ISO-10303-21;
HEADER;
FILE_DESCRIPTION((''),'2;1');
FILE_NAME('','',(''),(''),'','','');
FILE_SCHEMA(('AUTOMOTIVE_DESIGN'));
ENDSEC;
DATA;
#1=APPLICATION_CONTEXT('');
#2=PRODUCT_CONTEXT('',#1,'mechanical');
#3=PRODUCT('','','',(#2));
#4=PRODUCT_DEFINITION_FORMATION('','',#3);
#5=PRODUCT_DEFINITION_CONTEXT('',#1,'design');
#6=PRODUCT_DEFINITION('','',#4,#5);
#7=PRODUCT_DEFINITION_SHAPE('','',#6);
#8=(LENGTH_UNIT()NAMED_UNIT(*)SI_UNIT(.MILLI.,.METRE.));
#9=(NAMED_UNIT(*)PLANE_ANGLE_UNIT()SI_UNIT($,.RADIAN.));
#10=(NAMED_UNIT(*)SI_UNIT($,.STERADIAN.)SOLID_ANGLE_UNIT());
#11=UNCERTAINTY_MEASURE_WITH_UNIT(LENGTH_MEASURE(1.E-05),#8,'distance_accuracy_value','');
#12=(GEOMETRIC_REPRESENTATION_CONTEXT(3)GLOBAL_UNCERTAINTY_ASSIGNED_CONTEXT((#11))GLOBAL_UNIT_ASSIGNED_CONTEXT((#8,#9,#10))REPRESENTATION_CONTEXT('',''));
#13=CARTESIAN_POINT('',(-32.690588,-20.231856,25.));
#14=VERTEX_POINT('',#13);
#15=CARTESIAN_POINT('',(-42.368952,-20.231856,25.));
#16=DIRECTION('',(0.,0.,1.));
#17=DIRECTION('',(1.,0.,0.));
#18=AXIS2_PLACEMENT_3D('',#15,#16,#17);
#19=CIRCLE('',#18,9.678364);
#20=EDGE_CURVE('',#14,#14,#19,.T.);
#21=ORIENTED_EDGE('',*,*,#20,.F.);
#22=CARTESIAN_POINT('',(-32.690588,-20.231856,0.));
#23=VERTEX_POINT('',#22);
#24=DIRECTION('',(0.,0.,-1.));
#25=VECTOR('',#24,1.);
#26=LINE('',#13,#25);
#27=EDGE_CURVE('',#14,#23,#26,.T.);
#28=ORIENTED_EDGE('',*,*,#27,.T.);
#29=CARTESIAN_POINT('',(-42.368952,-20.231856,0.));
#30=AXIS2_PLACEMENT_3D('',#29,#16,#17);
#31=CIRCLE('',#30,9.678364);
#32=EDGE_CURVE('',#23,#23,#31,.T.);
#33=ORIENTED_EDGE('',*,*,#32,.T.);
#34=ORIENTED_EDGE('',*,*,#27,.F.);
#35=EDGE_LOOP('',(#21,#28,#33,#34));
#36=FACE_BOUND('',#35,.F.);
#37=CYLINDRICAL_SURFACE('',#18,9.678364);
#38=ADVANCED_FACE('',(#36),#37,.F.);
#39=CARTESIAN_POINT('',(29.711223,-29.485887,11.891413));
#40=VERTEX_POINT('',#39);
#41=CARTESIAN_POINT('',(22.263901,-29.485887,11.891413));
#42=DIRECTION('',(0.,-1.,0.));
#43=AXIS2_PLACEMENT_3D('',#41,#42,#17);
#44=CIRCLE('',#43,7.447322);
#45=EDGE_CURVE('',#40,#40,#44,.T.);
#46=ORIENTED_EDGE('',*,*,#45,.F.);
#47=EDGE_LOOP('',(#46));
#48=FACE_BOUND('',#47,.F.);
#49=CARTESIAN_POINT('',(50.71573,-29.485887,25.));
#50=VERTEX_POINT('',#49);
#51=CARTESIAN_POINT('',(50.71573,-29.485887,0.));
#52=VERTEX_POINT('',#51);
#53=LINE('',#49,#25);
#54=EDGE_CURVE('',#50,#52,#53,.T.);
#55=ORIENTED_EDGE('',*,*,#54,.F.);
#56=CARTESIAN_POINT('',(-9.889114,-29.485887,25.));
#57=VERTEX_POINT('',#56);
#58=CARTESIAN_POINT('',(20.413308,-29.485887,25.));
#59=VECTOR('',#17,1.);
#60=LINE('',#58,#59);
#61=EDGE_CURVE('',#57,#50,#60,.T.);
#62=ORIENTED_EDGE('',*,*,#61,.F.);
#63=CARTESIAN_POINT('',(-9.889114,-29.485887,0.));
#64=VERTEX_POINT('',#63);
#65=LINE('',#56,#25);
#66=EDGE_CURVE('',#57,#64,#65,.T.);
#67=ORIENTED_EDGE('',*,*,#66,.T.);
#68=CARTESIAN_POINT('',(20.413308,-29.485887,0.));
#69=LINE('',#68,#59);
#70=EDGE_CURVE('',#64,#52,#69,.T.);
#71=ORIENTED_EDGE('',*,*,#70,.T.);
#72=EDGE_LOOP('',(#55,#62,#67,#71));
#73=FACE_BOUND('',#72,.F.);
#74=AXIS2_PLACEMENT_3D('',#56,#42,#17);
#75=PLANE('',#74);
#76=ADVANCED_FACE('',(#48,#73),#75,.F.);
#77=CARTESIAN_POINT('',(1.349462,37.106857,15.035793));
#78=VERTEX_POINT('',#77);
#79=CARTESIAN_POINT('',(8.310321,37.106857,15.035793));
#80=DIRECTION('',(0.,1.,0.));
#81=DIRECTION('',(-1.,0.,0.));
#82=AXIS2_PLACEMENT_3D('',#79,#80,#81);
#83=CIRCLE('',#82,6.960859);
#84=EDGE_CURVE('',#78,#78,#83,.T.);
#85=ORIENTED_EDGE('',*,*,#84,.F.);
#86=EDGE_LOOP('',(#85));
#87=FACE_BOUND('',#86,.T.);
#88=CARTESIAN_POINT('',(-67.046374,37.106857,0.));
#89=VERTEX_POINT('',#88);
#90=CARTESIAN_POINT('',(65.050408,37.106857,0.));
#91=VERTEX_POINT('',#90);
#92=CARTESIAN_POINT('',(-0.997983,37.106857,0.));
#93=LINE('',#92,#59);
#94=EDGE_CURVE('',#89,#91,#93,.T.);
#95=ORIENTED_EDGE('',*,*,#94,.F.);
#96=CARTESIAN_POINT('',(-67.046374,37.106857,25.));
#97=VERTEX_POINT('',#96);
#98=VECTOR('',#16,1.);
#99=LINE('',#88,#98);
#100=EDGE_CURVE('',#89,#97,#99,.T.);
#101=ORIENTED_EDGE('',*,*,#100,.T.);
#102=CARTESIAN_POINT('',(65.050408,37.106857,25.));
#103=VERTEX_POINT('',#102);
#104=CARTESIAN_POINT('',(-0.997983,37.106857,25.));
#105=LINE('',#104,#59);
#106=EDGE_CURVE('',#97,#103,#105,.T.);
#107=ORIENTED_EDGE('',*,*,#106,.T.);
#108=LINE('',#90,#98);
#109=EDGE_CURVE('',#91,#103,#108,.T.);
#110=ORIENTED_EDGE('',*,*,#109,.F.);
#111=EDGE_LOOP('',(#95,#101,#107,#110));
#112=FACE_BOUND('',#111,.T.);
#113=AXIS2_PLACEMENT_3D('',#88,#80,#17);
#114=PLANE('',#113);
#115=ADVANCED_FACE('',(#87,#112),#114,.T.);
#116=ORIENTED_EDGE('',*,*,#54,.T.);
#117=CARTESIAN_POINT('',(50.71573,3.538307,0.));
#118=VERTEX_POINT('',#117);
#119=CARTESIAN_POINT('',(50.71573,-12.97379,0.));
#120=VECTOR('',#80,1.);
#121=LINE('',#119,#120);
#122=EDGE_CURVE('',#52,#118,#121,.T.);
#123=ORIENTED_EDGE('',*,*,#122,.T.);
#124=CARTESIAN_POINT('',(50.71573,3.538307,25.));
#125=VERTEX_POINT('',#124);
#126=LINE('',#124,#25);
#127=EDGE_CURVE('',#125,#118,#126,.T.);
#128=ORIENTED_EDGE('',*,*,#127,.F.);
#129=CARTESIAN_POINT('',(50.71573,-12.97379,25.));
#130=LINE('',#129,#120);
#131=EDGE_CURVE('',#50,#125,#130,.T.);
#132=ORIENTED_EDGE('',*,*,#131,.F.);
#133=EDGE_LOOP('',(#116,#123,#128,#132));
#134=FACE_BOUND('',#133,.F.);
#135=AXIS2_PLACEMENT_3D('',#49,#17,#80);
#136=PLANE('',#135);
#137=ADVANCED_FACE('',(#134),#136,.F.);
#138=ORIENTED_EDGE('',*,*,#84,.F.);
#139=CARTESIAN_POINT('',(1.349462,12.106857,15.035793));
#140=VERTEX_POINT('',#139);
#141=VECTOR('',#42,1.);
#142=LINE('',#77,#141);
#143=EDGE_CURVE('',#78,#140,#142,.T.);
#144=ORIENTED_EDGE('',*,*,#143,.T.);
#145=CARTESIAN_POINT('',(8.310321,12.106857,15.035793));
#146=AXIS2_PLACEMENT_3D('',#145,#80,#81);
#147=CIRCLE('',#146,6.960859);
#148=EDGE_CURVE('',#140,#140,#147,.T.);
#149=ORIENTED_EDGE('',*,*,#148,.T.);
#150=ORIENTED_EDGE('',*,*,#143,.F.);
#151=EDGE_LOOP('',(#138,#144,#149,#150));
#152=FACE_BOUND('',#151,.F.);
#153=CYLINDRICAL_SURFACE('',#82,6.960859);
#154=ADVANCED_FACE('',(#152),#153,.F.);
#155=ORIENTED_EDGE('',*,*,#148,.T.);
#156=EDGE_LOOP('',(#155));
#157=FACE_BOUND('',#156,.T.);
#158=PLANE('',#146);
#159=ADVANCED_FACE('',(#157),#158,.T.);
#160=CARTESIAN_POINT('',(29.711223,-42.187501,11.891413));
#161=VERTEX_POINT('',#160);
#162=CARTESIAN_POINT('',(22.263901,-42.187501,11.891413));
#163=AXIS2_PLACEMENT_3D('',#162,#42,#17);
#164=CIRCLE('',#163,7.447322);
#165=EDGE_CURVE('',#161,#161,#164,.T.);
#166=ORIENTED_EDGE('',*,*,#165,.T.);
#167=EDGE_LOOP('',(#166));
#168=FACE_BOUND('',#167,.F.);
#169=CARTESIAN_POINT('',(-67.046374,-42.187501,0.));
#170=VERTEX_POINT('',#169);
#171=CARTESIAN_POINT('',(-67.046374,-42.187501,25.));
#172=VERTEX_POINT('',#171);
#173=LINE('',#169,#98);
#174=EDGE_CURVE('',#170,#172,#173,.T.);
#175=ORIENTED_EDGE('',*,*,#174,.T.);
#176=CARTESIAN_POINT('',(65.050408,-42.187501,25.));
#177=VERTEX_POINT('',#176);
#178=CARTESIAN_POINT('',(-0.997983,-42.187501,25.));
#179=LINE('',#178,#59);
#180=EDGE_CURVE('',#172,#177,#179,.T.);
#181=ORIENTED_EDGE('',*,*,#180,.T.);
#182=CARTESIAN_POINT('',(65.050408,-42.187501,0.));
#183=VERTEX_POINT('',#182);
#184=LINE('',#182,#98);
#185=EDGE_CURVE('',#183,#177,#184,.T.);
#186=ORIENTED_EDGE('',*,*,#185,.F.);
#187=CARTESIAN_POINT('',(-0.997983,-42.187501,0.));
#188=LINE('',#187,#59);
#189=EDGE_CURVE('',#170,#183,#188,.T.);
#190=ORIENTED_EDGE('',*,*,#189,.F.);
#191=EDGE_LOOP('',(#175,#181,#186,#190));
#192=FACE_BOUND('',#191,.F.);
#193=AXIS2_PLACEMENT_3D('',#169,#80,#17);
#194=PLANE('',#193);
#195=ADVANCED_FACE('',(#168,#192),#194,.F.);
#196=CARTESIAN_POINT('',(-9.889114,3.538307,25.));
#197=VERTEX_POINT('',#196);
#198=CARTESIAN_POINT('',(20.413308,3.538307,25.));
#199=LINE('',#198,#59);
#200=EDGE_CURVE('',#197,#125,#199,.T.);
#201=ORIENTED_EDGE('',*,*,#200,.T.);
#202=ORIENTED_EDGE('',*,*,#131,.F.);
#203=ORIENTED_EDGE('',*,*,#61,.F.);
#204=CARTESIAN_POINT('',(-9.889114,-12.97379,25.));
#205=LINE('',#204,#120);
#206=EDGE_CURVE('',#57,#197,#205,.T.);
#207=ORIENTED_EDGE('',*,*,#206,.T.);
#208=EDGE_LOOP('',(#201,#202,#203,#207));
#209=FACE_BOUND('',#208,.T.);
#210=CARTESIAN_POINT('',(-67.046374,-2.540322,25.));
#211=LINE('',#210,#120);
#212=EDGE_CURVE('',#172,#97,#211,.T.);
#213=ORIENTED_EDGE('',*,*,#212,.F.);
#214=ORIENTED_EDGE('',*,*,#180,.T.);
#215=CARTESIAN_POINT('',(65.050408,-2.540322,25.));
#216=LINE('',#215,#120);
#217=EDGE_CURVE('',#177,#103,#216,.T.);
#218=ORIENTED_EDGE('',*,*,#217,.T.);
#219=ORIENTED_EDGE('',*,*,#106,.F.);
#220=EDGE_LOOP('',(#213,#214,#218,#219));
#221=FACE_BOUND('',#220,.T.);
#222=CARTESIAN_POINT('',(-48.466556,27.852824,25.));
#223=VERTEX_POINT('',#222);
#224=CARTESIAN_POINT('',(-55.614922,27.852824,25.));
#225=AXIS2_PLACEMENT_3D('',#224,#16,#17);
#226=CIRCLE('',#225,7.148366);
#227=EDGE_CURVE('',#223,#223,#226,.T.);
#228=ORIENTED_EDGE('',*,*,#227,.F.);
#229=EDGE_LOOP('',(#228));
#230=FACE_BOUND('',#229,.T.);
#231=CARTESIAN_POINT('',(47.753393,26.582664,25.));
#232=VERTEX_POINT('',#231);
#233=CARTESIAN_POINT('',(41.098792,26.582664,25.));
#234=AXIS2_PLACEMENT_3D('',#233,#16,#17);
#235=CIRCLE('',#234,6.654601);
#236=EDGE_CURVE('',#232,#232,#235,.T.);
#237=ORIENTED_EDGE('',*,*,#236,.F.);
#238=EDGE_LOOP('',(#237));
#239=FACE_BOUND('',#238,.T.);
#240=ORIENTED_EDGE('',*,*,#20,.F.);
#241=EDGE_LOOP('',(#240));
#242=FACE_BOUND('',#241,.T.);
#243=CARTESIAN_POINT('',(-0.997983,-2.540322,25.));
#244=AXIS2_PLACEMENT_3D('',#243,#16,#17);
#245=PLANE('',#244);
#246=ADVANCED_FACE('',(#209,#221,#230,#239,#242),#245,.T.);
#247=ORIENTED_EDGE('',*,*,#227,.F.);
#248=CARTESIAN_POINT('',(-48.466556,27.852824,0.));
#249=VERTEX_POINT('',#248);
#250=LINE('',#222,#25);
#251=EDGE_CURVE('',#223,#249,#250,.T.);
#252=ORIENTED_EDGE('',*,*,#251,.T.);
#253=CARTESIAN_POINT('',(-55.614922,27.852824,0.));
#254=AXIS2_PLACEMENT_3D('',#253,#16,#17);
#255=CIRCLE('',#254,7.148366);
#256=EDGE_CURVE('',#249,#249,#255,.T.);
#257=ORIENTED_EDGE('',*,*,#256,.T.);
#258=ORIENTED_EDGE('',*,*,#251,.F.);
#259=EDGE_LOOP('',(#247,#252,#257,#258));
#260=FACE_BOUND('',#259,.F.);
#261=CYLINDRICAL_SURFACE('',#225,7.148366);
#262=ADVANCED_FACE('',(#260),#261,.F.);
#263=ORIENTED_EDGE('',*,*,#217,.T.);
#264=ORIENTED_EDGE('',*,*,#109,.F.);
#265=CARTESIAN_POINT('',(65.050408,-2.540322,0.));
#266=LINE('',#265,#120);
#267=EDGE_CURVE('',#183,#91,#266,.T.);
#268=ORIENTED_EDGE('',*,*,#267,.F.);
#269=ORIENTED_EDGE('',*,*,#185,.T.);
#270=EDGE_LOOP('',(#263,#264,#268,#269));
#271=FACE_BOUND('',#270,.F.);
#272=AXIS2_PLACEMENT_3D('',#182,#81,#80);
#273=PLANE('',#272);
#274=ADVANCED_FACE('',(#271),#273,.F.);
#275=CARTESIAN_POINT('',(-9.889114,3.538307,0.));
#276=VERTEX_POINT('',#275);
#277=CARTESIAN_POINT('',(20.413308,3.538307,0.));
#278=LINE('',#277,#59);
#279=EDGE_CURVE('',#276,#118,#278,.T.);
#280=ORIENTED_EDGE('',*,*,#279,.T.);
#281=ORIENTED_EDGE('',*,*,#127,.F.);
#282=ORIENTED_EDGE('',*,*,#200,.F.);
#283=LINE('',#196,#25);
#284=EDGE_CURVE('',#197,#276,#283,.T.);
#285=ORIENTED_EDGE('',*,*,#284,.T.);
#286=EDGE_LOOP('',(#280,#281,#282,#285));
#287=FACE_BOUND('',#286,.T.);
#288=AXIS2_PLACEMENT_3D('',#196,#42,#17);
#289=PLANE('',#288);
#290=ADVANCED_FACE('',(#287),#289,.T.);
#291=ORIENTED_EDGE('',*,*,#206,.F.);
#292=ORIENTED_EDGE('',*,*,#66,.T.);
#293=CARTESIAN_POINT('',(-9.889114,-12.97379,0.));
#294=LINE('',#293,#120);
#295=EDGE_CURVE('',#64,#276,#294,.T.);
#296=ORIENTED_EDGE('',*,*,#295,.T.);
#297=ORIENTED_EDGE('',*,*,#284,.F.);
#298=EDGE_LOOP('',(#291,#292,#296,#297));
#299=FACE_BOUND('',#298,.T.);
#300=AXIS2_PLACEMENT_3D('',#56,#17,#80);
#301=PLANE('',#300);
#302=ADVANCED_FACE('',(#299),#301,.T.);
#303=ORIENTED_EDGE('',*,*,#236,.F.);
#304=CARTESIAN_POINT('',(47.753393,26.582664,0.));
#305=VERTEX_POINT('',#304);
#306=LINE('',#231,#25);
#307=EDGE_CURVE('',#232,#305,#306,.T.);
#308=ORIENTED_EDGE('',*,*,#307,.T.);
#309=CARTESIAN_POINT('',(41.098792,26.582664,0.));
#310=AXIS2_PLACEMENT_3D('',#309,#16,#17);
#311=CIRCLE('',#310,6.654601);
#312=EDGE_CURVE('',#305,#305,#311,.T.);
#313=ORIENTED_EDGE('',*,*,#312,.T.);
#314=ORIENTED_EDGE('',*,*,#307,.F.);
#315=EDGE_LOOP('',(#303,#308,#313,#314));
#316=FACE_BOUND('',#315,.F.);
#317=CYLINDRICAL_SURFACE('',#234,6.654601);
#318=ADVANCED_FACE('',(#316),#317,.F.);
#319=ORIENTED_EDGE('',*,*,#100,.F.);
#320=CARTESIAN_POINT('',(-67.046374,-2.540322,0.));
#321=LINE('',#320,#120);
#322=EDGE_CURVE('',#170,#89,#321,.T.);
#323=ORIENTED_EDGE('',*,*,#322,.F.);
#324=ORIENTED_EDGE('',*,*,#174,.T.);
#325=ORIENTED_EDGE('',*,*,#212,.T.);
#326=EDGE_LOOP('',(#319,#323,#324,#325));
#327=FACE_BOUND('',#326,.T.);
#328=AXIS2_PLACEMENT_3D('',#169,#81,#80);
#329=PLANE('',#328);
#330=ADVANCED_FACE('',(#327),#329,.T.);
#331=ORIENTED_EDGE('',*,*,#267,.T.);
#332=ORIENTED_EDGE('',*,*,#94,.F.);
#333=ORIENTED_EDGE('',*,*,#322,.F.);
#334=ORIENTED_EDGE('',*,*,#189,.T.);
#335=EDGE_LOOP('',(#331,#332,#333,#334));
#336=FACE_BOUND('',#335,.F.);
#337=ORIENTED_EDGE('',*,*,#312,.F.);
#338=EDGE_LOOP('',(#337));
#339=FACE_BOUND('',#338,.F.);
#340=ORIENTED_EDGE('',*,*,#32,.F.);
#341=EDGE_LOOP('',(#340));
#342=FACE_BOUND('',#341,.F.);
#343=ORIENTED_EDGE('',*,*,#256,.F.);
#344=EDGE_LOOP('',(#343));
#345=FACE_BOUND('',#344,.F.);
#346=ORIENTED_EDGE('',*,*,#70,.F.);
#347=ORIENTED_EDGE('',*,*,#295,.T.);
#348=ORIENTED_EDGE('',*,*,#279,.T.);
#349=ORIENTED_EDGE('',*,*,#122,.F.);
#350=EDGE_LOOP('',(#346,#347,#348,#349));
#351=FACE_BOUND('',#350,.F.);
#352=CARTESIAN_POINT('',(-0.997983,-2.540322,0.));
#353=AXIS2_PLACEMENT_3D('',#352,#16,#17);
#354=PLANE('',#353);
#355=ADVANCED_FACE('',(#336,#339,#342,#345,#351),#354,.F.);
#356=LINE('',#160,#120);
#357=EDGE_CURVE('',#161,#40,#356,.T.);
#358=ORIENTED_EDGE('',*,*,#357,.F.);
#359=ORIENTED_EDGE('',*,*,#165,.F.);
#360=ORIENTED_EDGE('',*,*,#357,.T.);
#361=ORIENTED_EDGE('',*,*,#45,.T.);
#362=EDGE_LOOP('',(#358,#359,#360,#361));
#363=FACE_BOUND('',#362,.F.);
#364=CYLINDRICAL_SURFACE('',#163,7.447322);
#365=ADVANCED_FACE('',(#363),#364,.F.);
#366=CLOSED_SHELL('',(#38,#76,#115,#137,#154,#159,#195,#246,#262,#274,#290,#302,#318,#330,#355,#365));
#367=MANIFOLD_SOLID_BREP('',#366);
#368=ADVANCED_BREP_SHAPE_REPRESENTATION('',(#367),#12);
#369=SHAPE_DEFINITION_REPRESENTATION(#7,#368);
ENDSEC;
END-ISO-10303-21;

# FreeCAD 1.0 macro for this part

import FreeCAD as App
import Part
import Sketcher

doc = App.newDocument("Part")
params = doc.addObject("Spreadsheet::Sheet", "Params")
for row, (alias, value) in enumerate([
    ("pad1_length", "25 mm"),
    ("pocket1_length", "25 mm"),
    ("pocket2_length", "25 mm"),
    ("pocket3_length", "25 mm"),
    ("pocket4_length", "25 mm"),
], start=1):
    params.set(f"A{row}", alias)
    params.set(f"B{row}", "=" + value)
    params.setAlias(f"B{row}", alias)

body = doc.addObject("PartDesign::Body", "Body")

sketch1 = body.newObject("Sketcher::SketchObject", "Sketch")
sketch1.AttachmentSupport = (doc.getObject("XY_Plane"), [""])
sketch1.MapMode = "FlatFace"
sketch1.addGeometry(Part.LineSegment(App.Vector(-67, 37, 0), App.Vector(-67, -42, 0)), False)
sketch1.addGeometry(Part.LineSegment(App.Vector(-67, -42, 0), App.Vector(65, -42, 0)), False)
sketch1.addGeometry(Part.LineSegment(App.Vector(65, -42, 0), App.Vector(65, 37, 0)), False)
sketch1.addGeometry(Part.LineSegment(App.Vector(65, 37, 0), App.Vector(-67, 37, 0)), False)
sketch1.addConstraint(Sketcher.Constraint("Coincident", 0, 2, 1, 1))
sketch1.addConstraint(Sketcher.Constraint("Coincident", 1, 2, 2, 1))
sketch1.addConstraint(Sketcher.Constraint("Coincident", 2, 2, 3, 1))
sketch1.addConstraint(Sketcher.Constraint("Coincident", 3, 2, 0, 1))
sketch1.addConstraint(Sketcher.Constraint("Vertical", 0))
sketch1.addConstraint(Sketcher.Constraint("Horizontal", 1))
sketch1.addConstraint(Sketcher.Constraint("Vertical", 2))
sketch1.addConstraint(Sketcher.Constraint("Horizontal", 3))
sketch1.addConstraint(Sketcher.Constraint("DistanceY", 0, 2, -1, 1, 42.187501))
sketch1.addConstraint(Sketcher.Constraint("DistanceX", 1, 1, 1, 2, 132.096782))
sketch1.addConstraint(Sketcher.Constraint("DistanceY", 0, 2, 0, 1, 79.294358))
sketch1.addConstraint(Sketcher.Constraint("DistanceX", -1, 1, 1, 2, 65.050408))
pad1 = body.newObject("PartDesign::Pad", "Pad")
pad1.Profile = sketch1
pad1.setExpression("Length", "Params.pad1_length")

sketch2 = body.newObject("Sketcher::SketchObject", "Sketch001")
sketch2.AttachmentSupport = (doc.getObject("XY_Plane"), [""])
sketch2.MapMode = "FlatFace"
sketch2.AttachmentOffset = App.Placement(App.Vector(0, 0, 25), App.Rotation())
sketch2.addGeometry(Part.Circle(App.Vector(-56, 28, 0), App.Vector(0, 0, 1), 7), False)
sketch2.addGeometry(Part.Circle(App.Vector(-42, -20, 0), App.Vector(0, 0, 1), 10), False)
sketch2.addConstraint(Sketcher.Constraint("Diameter", 1, 19.356728))
sketch2.addConstraint(Sketcher.Constraint("Diameter", 0, 14.296732))
sketch2.addConstraint(Sketcher.Constraint("DistanceX", 0, 3, 1, 3, 13.24597))
sketch2.addConstraint(Sketcher.Constraint("DistanceY", 1, 3, 0, 3, 48.08468))
sketch2.addConstraint(Sketcher.Constraint("DistanceX", 0, 3, -1, 1, 55.614922))
sketch2.addConstraint(Sketcher.Constraint("DistanceY", -1, 1, 0, 3, 27.852824))
pocket1 = body.newObject("PartDesign::Pocket", "Pocket")
pocket1.Profile = sketch2
pocket1.setExpression("Length", "Params.pocket1_length")

sketch3 = body.newObject("Sketcher::SketchObject", "Sketch002")
sketch3.AttachmentSupport = (doc.getObject("XY_Plane"), [""])
sketch3.MapMode = "FlatFace"
sketch3.AttachmentOffset = App.Placement(App.Vector(0, 0, 25), App.Rotation())
sketch3.addGeometry(Part.Circle(App.Vector(-56, 28, 0), App.Vector(0, 0, 1), 7), False)
sketch3.addGeometry(Part.Circle(App.Vector(-42, -20, 0), App.Vector(0, 0, 1), 10), False)
sketch3.addGeometry(Part.Circle(App.Vector(41, 27, 0), App.Vector(0, 0, 1), 7), False)
sketch3.addGeometry(Part.LineSegment(App.Vector(-10, 4, 0), App.Vector(-10, -29, 0)), False)
sketch3.addGeometry(Part.LineSegment(App.Vector(-10, -29, 0), App.Vector(51, -29, 0)), False)
sketch3.addGeometry(Part.LineSegment(App.Vector(51, -29, 0), App.Vector(51, 4, 0)), False)
sketch3.addGeometry(Part.LineSegment(App.Vector(51, 4, 0), App.Vector(-10, 4, 0)), False)
sketch3.addConstraint(Sketcher.Constraint("Coincident", 3, 2, 4, 1))
sketch3.addConstraint(Sketcher.Constraint("Coincident", 4, 2, 5, 1))
sketch3.addConstraint(Sketcher.Constraint("Coincident", 5, 2, 6, 1))
sketch3.addConstraint(Sketcher.Constraint("Coincident", 6, 2, 3, 1))
sketch3.addConstraint(Sketcher.Constraint("Vertical", 3))
sketch3.addConstraint(Sketcher.Constraint("Horizontal", 4))
sketch3.addConstraint(Sketcher.Constraint("Vertical", 5))
sketch3.addConstraint(Sketcher.Constraint("Horizontal", 6))
sketch3.addConstraint(Sketcher.Constraint("Diameter", 1, 19.356728))
sketch3.addConstraint(Sketcher.Constraint("Diameter", 0, 14.296732))
sketch3.addConstraint(Sketcher.Constraint("Diameter", 2, 13.309202))
sketch3.addConstraint(Sketcher.Constraint("DistanceX", 4, 1, 4, 2, 60.604844))
sketch3.addConstraint(Sketcher.Constraint("DistanceY", 3, 2, 3, 1, 33.024194))
sketch3.addConstraint(Sketcher.Constraint("DistanceX", -1, 1, 4, 2, 50.71573))
sketch3.addConstraint(Sketcher.Constraint("DistanceX", 0, 3, 1, 3, 13.24597))
sketch3.addConstraint(Sketcher.Constraint("DistanceY", 1, 3, 0, 3, 48.08468))
sketch3.addConstraint(Sketcher.Constraint("DistanceY", 1, 3, 2, 3, 46.81452))
sketch3.addConstraint(Sketcher.Constraint("DistanceY", 3, 2, 1, 3, 9.254031))
sketch3.addConstraint(Sketcher.Constraint("DistanceX", 1, 3, 4, 2, 93.084682))
sketch3.addConstraint(Sketcher.Constraint("DistanceY", -1, 1, 0, 3, 27.852824))
sketch3.addConstraint(Sketcher.Constraint("DistanceX", -1, 1, 2, 3, 41.098792))
pocket2 = body.newObject("PartDesign::Pocket", "Pocket001")
pocket2.Profile = sketch3
pocket2.setExpression("Length", "Params.pocket2_length")

sketch4 = body.newObject("Sketcher::SketchObject", "Sketch003")
sketch4.AttachmentSupport = (doc.getObject("XZ_Plane"), [""])
sketch4.MapMode = "FlatFace"
sketch4.AttachmentOffset = App.Placement(App.Vector(0, 0, 42.187501), App.Rotation())
sketch4.addGeometry(Part.Circle(App.Vector(22, 12, 0), App.Vector(0, 0, 1), 7), False)
sketch4.addConstraint(Sketcher.Constraint("Diameter", 0, 14.894644))
sketch4.addConstraint(Sketcher.Constraint("DistanceX", -1, 1, 0, 3, 22.263901))
sketch4.addConstraint(Sketcher.Constraint("DistanceY", -1, 1, 0, 3, 11.891413))
pocket3 = body.newObject("PartDesign::Pocket", "Pocket002")
pocket3.Profile = sketch4
pocket3.setExpression("Length", "Params.pocket3_length")

sketch5 = body.newObject("Sketcher::SketchObject", "Sketch004")
sketch5.AttachmentSupport = (doc.getObject("XZ_Plane"), [""])
sketch5.MapMode = "FlatFace"
sketch5.AttachmentOffset = App.Placement(App.Vector(0, 0, -37.106857), App.Rotation())
sketch5.addGeometry(Part.Circle(App.Vector(8, 15, 0), App.Vector(0, 0, 1), 7), False)
sketch5.addConstraint(Sketcher.Constraint("Diameter", 0, 13.921718))
sketch5.addConstraint(Sketcher.Constraint("DistanceX", -1, 1, 0, 3, 8.310321))
sketch5.addConstraint(Sketcher.Constraint("DistanceY", -1, 1, 0, 3, 15.035793))
pocket4 = body.newObject("PartDesign::Pocket", "Pocket003")
pocket4.Profile = sketch5
pocket4.setExpression("Length", "Params.pocket4_length")
pocket4.Reversed = True

doc.recompute()
